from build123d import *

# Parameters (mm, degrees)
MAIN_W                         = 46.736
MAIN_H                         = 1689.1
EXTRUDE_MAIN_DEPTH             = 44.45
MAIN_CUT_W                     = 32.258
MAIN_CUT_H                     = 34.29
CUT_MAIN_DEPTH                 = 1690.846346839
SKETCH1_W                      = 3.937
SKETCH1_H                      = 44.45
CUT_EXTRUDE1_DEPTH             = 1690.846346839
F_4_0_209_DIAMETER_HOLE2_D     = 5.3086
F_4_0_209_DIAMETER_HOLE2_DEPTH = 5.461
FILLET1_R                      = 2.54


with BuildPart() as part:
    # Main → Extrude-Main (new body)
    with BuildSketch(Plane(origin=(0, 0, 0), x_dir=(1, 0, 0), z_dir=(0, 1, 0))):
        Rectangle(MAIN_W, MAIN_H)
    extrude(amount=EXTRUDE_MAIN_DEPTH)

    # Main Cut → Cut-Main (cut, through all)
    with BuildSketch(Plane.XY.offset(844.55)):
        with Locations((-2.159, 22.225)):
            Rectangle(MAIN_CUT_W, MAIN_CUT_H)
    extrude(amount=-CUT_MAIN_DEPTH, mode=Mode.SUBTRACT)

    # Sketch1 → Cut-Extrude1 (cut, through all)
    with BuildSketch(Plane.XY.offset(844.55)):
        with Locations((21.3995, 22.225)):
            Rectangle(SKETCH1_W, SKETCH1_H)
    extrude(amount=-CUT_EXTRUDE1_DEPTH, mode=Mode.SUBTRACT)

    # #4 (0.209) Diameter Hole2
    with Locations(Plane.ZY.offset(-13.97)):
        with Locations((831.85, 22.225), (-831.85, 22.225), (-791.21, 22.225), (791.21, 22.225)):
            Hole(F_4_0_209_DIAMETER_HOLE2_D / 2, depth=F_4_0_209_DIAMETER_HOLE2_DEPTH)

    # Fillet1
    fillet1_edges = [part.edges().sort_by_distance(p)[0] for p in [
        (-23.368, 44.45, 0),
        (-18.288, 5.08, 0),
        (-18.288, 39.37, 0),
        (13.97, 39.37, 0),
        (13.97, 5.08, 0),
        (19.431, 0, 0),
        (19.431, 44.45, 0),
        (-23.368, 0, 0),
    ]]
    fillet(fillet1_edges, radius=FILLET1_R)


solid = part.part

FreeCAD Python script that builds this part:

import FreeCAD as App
import Part
import Sketcher
from FreeCAD import Vector
Q = App.Units.Quantity


def edges_at(feature, points):
    """Names of the edges that pass closest to the given points."""
    edges = feature.Shape.Edges
    near = lambda p: min(range(len(edges)), key=lambda i: edges[i].distToShape(Part.Vertex(*p))[0])
    return sorted({f"Edge{near(p) + 1}" for p in points})

doc = App.newDocument("Part")
body = doc.addObject("PartDesign::Body", "Body")

# Sketch on XZ plane
sketch1 = body.newObject("Sketcher::SketchObject", "Sketch")
sketch1.AttachmentSupport = (doc.getObject("XZ_Plane"), [""])
sketch1.MapMode = "FlatFace"
sketch1.addGeometry([
    Part.LineSegment(Vector(-23, -845, 0), Vector(-23, 845, 0)),
    Part.LineSegment(Vector(-23, 845, 0), Vector(23, 845, 0)),
    Part.LineSegment(Vector(23, 845, 0), Vector(23, -845, 0)),
    Part.LineSegment(Vector(23, -845, 0), Vector(-23, -845, 0)),
], False)
sketch1.addConstraint([
    Sketcher.Constraint("Coincident", 0, 2, 1, 1),
    Sketcher.Constraint("Coincident", 1, 2, 2, 1),
    Sketcher.Constraint("Coincident", 2, 2, 3, 1),
    Sketcher.Constraint("Coincident", 3, 2, 0, 1),
    Sketcher.Constraint("Vertical", 0),
    Sketcher.Constraint("Horizontal", 1),
    Sketcher.Constraint("Vertical", 2),
    Sketcher.Constraint("Horizontal", 3),
    Sketcher.Constraint("Symmetric", 0, 2, 2, 2, -1, 1),
    Sketcher.Constraint("DistanceY", 0, 1, 0, 2, Q("66.5 in")),
    Sketcher.Constraint("DistanceX", 1, 1, 1, 2, Q("1.84 in")),
])
pad1 = body.newObject("PartDesign::Pad", "Pad")
pad1.Profile = sketch1
pad1.Length = Q("1.75 in")
pad1.Reversed = True

# Sketch on XY plane
sketch2 = body.newObject("Sketcher::SketchObject", "Sketch001")
sketch2.AttachmentSupport = (doc.getObject("XY_Plane"), [""])
sketch2.MapMode = "FlatFace"
sketch2.AttachmentOffset = App.Placement(Vector(0, 0, 33.25 * 25.4), App.Rotation())
sketch2.addGeometry([
    Part.LineSegment(Vector(-18, 39, 0), Vector(-18, 5, 0)),
    Part.LineSegment(Vector(-18, 5, 0), Vector(14, 5, 0)),
    Part.LineSegment(Vector(14, 5, 0), Vector(14, 39, 0)),
    Part.LineSegment(Vector(14, 39, 0), Vector(-18, 39, 0)),
], False)
sketch2.addConstraint([
    Sketcher.Constraint("Coincident", 0, 2, 1, 1),
    Sketcher.Constraint("Coincident", 1, 2, 2, 1),
    Sketcher.Constraint("Coincident", 2, 2, 3, 1),
    Sketcher.Constraint("Coincident", 3, 2, 0, 1),
    Sketcher.Constraint("Vertical", 0),
    Sketcher.Constraint("Horizontal", 1),
    Sketcher.Constraint("Vertical", 2),
    Sketcher.Constraint("Horizontal", 3),
    Sketcher.Constraint("DistanceX", 1, 1, 1, 2, Q("1.27 in")),
    Sketcher.Constraint("DistanceY", 0, 2, 0, 1, Q("1.35 in")),
    Sketcher.Constraint("DistanceY", -1, 1, 0, 2, Q("0.2 in")),
    Sketcher.Constraint("DistanceX", 0, 2, -1, 1, Q("0.72 in")),
])
pocket1 = body.newObject("PartDesign::Pocket", "Pocket")
pocket1.Profile = sketch2
pocket1.Type = "ThroughAll"

# Sketch on XY plane
sketch3 = body.newObject("Sketcher::SketchObject", "Sketch002")
sketch3.AttachmentSupport = (doc.getObject("XY_Plane"), [""])
sketch3.MapMode = "FlatFace"
sketch3.AttachmentOffset = App.Placement(Vector(0, 0, 33.25 * 25.4), App.Rotation())
sketch3.addGeometry([
    Part.LineSegment(Vector(19.4, 44.5, 0), Vector(19.4, 0, 0)),
    Part.LineSegment(Vector(19.4, 0, 0), Vector(23.4, 0, 0)),
    Part.LineSegment(Vector(23.4, 0, 0), Vector(23.4, 44.5, 0)),
    Part.LineSegment(Vector(23.4, 44.5, 0), Vector(19.4, 44.5, 0)),
], False)
sketch3.addConstraint([
    Sketcher.Constraint("Coincident", 0, 2, 1, 1),
    Sketcher.Constraint("Coincident", 1, 2, 2, 1),
    Sketcher.Constraint("Coincident", 2, 2, 3, 1),
    Sketcher.Constraint("Coincident", 3, 2, 0, 1),
    Sketcher.Constraint("Vertical", 0),
    Sketcher.Constraint("Horizontal", 1),
    Sketcher.Constraint("Vertical", 2),
    Sketcher.Constraint("Horizontal", 3),
    Sketcher.Constraint("PointOnObject", 0, 2, -1),
    Sketcher.Constraint("DistanceY", 0, 2, 0, 1, Q("1.75 in")),
    Sketcher.Constraint("DistanceX", 1, 1, 1, 2, Q("0.155 in")),
    Sketcher.Constraint("DistanceX", -1, 1, 1, 2, Q("0.92 in")),
])
pocket2 = body.newObject("PartDesign::Pocket", "Pocket001")
pocket2.Profile = sketch3
pocket2.Type = "ThroughAll"

# Sketch on YZ plane
sketch4 = body.newObject("Sketcher::SketchObject", "Sketch003")
sketch4.AttachmentSupport = (doc.getObject("YZ_Plane"), [""])
sketch4.MapMode = "FlatFace"
sketch4.AttachmentOffset = App.Placement(Vector(0, 0, 0.55 * 25.4), App.Rotation())
sketch4.addGeometry([
    Part.Circle(Vector(22.2, 831.9, 0), Vector(0, 0, 1), 2.7),
    Part.Circle(Vector(22.2, -831.9, 0), Vector(0, 0, 1), 2.7),
    Part.Circle(Vector(22.2, -791.2, 0), Vector(0, 0, 1), 2.7),
    Part.Circle(Vector(22.2, 791.2, 0), Vector(0, 0, 1), 2.7),
], False)
sketch4.addConstraint([
    Sketcher.Constraint("Equal", 0, 1),
    Sketcher.Constraint("Equal", 1, 2),
    Sketcher.Constraint("Equal", 2, 3),
    Sketcher.Constraint("Symmetric", 0, 3, 1, 3, -1),
    Sketcher.Constraint("Symmetric", 2, 3, 3, 3, -1),
    Sketcher.Constraint("Vertical", 1, 3, 2, 3),
    Sketcher.Constraint("Diameter", 0, Q("0.209 in")),
    Sketcher.Constraint("DistanceY", 1, 3, 0, 3, Q("65.5 in")),
    Sketcher.Constraint("DistanceY", 1, 3, 2, 3, Q("1.6 in")),
    Sketcher.Constraint("DistanceX", -1, 1, 0, 3, Q("0.875 in")),
])
doc.recompute()
hole = body.newObject("PartDesign::Hole", "Hole")
hole.Profile = sketch4
hole.ThreadType = "None"
hole.Diameter = Q("0.209 in")
hole.DepthType = "Dimension"
hole.Depth = Q("0.215 in")
hole.DrillPoint = "Flat"
hole.Reversed = True
doc.recompute()

fillet = body.newObject("PartDesign::Fillet", "Fillet")
fillet.Base = (hole, edges_at(hole, [
    (-23.368, 44.45, 0),
    (-18.288, 5.08, 0),
    (-18.288, 39.37, 0),
    (13.97, 39.37, 0),
    (13.97, 5.08, 0),
    (19.431, 0, 0),
    (19.431, 44.45, 0),
    (-23.368, 0, 0),
]))
fillet.Radius = Q("0.1 in")

doc.recompute()
